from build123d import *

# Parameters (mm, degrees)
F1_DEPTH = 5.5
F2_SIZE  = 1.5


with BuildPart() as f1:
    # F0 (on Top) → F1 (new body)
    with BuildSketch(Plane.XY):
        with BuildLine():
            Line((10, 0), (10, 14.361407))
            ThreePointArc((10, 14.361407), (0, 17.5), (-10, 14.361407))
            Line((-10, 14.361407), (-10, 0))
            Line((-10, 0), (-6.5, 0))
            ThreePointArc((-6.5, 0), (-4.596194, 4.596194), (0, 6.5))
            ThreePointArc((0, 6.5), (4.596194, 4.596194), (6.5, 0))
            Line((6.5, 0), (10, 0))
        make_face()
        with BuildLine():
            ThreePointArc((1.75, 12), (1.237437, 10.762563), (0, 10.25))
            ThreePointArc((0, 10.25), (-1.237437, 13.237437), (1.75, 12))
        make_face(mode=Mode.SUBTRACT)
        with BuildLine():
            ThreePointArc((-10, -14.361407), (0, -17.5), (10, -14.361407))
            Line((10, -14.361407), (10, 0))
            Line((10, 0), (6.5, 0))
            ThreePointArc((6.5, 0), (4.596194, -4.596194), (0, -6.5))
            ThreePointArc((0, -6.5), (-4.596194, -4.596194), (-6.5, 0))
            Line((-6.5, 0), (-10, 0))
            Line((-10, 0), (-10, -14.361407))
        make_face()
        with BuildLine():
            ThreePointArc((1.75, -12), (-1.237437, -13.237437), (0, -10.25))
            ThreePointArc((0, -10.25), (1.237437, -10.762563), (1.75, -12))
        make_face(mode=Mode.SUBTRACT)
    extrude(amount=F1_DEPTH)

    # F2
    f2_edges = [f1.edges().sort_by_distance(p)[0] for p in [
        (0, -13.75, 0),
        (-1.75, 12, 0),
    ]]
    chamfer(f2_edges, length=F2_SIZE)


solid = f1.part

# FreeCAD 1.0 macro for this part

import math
import FreeCAD as App
import Part
import Sketcher
from FreeCAD import Vector
Q = App.Units.Quantity


def edges_at(feature, points):
    """Names of the edges that pass closest to the given points."""
    edges = feature.Shape.Edges
    near = lambda p: min(range(len(edges)), key=lambda i: edges[i].distToShape(Part.Vertex(*p))[0])
    return sorted({f"Edge{near(p) + 1}" for p in points})

doc = App.newDocument("Part")
body = doc.addObject("PartDesign::Body", "Body")

# Sketch on XY plane
sketch1 = body.newObject("Sketcher::SketchObject", "Sketch")
sketch1.AttachmentSupport = (doc.getObject("XY_Plane"), [""])
sketch1.MapMode = "FlatFace"
sketch1.addGeometry(Part.ArcOfCircle(Part.Circle(Vector(0, 0, 0), Vector(0, 0, 1), 17.5), math.radians(55), math.radians(125)), False)
sketch1.addGeometry(Part.LineSegment(Vector(-10, 14.4, 0), Vector(-10, -14.4, 0)), False)
sketch1.addGeometry(Part.ArcOfCircle(Part.Circle(Vector(0, 0, 0), Vector(0, 0, 1), 17.5), math.radians(-125), math.radians(-55)), False)
sketch1.addGeometry(Part.LineSegment(Vector(10, -14.4, 0), Vector(10, 14.4, 0)), False)
sketch1.addGeometry(Part.ArcOfCircle(Part.Circle(Vector(0, -12, 0), Vector(0, 0, 1), 1.7), math.radians(0), math.radians(90)), False)
sketch1.addGeometry(Part.ArcOfCircle(Part.Circle(Vector(0, -12, 0), Vector(0, 0, 1), 1.8), math.radians(90), math.radians(360)), False)
sketch1.addGeometry(Part.ArcOfCircle(Part.Circle(Vector(0, 0, 0), Vector(0, 0, 1), 6.5), math.radians(0), math.radians(90)), False)
sketch1.addGeometry(Part.ArcOfCircle(Part.Circle(Vector(0, 0, 0), Vector(0, 0, 1), 6.5), math.radians(-90), math.radians(0)), False)
sketch1.addGeometry(Part.ArcOfCircle(Part.Circle(Vector(0, 0, 0), Vector(0, 0, 1), 6.5), math.radians(-180), math.radians(-90)), False)
sketch1.addGeometry(Part.ArcOfCircle(Part.Circle(Vector(0, 0, 0), Vector(0, 0, 1), 6.5), math.radians(90), math.radians(180)), False)
sketch1.addGeometry(Part.ArcOfCircle(Part.Circle(Vector(0, 12, 0), Vector(0, 0, 1), 1.8), math.radians(0), math.radians(270)), False)
sketch1.addGeometry(Part.ArcOfCircle(Part.Circle(Vector(0, 12, 0), Vector(0, 0, 1), 1.7), math.radians(-90), math.radians(0)), False)
sketch1.addConstraint(Sketcher.Constraint("Coincident", 0, 2, 1, 1))
sketch1.addConstraint(Sketcher.Constraint("Coincident", 1, 2, 2, 1))
sketch1.addConstraint(Sketcher.Constraint("Coincident", 2, 2, 3, 1))
sketch1.addConstraint(Sketcher.Constraint("Coincident", 3, 2, 0, 1))
sketch1.addConstraint(Sketcher.Constraint("Tangent", 4, 1, 5, 2))
sketch1.addConstraint(Sketcher.Constraint("Coincident", 5, 1, 4, 2))
sketch1.addConstraint(Sketcher.Constraint("Tangent", 6, 1, 7, 2))
sketch1.addConstraint(Sketcher.Constraint("Tangent", 7, 1, 8, 2))
sketch1.addConstraint(Sketcher.Constraint("Tangent", 8, 1, 9, 2))
sketch1.addConstraint(Sketcher.Constraint("Tangent", 9, 1, 6, 2))
sketch1.addConstraint(Sketcher.Constraint("Tangent", 10, 1, 11, 2))
sketch1.addConstraint(Sketcher.Constraint("Coincident", 11, 1, 10, 2))
sketch1.addConstraint(Sketcher.Constraint("Vertical", 1))
sketch1.addConstraint(Sketcher.Constraint("Vertical", 3))
sketch1.addConstraint(Sketcher.Constraint("Coincident", 0, 3, -1, 1))
sketch1.addConstraint(Sketcher.Constraint("Coincident", 2, 3, -1, 1))
sketch1.addConstraint(Sketcher.Constraint("Coincident", 6, 3, -1, 1))
sketch1.addConstraint(Sketcher.Constraint("Equal", 0, 2))
sketch1.addConstraint(Sketcher.Constraint("Equal", 6, 7))
sketch1.addConstraint(Sketcher.Constraint("Equal", 5, 10))
sketch1.addConstraint(Sketcher.Constraint("Symmetric", 4, 3, 10, 3, -1, 1))
sketch1.addConstraint(Sketcher.Constraint("Symmetric", 4, 1, 10, 1, -1))
sketch1.addConstraint(Sketcher.Constraint("PointOnObject", 5, 1, -2))
sketch1.addConstraint(Sketcher.Constraint("PointOnObject", 6, 1, -1))
sketch1.addConstraint(Sketcher.Constraint("PointOnObject", 7, 1, -2))
sketch1.addConstraint(Sketcher.Constraint("PointOnObject", 8, 1, -1))
sketch1.addConstraint(Sketcher.Constraint("PointOnObject", 9, 1, -2))
sketch1.addConstraint(Sketcher.Constraint("PointOnObject", 11, 1, -2))
sketch1.addConstraint(Sketcher.Constraint("Horizontal", 1, 2, 2, 2))
sketch1.addConstraint(Sketcher.Constraint("Horizontal", 5, 3, 4, 1))
sketch1.addConstraint(Sketcher.Constraint("Radius", 0, Q("17.500002 mm")))
sketch1.addConstraint(Sketcher.Constraint("Radius", 6, Q("6.5 mm")))
sketch1.addConstraint(Sketcher.Constraint("Radius", 4, Q("1.75 mm")))
sketch1.addConstraint(Sketcher.Constraint("DistanceY", 4, 3, -1, 1, Q("12 mm")))
sketch1.addConstraint(Sketcher.Constraint("DistanceX", 0, 2, -1, 1, Q("10 mm")))
pad1 = body.newObject("PartDesign::Pad", "Pad")
pad1.Profile = sketch1
pad1.Length = 5.5
doc.recompute()

chamfer = body.newObject("PartDesign::Chamfer", "Chamfer")
chamfer.Base = (pad1, edges_at(pad1, [(-1.237, -13.237, 0), (-1.237, 13.237, 0)]))
chamfer.Size = 1.5

doc.recompute()
